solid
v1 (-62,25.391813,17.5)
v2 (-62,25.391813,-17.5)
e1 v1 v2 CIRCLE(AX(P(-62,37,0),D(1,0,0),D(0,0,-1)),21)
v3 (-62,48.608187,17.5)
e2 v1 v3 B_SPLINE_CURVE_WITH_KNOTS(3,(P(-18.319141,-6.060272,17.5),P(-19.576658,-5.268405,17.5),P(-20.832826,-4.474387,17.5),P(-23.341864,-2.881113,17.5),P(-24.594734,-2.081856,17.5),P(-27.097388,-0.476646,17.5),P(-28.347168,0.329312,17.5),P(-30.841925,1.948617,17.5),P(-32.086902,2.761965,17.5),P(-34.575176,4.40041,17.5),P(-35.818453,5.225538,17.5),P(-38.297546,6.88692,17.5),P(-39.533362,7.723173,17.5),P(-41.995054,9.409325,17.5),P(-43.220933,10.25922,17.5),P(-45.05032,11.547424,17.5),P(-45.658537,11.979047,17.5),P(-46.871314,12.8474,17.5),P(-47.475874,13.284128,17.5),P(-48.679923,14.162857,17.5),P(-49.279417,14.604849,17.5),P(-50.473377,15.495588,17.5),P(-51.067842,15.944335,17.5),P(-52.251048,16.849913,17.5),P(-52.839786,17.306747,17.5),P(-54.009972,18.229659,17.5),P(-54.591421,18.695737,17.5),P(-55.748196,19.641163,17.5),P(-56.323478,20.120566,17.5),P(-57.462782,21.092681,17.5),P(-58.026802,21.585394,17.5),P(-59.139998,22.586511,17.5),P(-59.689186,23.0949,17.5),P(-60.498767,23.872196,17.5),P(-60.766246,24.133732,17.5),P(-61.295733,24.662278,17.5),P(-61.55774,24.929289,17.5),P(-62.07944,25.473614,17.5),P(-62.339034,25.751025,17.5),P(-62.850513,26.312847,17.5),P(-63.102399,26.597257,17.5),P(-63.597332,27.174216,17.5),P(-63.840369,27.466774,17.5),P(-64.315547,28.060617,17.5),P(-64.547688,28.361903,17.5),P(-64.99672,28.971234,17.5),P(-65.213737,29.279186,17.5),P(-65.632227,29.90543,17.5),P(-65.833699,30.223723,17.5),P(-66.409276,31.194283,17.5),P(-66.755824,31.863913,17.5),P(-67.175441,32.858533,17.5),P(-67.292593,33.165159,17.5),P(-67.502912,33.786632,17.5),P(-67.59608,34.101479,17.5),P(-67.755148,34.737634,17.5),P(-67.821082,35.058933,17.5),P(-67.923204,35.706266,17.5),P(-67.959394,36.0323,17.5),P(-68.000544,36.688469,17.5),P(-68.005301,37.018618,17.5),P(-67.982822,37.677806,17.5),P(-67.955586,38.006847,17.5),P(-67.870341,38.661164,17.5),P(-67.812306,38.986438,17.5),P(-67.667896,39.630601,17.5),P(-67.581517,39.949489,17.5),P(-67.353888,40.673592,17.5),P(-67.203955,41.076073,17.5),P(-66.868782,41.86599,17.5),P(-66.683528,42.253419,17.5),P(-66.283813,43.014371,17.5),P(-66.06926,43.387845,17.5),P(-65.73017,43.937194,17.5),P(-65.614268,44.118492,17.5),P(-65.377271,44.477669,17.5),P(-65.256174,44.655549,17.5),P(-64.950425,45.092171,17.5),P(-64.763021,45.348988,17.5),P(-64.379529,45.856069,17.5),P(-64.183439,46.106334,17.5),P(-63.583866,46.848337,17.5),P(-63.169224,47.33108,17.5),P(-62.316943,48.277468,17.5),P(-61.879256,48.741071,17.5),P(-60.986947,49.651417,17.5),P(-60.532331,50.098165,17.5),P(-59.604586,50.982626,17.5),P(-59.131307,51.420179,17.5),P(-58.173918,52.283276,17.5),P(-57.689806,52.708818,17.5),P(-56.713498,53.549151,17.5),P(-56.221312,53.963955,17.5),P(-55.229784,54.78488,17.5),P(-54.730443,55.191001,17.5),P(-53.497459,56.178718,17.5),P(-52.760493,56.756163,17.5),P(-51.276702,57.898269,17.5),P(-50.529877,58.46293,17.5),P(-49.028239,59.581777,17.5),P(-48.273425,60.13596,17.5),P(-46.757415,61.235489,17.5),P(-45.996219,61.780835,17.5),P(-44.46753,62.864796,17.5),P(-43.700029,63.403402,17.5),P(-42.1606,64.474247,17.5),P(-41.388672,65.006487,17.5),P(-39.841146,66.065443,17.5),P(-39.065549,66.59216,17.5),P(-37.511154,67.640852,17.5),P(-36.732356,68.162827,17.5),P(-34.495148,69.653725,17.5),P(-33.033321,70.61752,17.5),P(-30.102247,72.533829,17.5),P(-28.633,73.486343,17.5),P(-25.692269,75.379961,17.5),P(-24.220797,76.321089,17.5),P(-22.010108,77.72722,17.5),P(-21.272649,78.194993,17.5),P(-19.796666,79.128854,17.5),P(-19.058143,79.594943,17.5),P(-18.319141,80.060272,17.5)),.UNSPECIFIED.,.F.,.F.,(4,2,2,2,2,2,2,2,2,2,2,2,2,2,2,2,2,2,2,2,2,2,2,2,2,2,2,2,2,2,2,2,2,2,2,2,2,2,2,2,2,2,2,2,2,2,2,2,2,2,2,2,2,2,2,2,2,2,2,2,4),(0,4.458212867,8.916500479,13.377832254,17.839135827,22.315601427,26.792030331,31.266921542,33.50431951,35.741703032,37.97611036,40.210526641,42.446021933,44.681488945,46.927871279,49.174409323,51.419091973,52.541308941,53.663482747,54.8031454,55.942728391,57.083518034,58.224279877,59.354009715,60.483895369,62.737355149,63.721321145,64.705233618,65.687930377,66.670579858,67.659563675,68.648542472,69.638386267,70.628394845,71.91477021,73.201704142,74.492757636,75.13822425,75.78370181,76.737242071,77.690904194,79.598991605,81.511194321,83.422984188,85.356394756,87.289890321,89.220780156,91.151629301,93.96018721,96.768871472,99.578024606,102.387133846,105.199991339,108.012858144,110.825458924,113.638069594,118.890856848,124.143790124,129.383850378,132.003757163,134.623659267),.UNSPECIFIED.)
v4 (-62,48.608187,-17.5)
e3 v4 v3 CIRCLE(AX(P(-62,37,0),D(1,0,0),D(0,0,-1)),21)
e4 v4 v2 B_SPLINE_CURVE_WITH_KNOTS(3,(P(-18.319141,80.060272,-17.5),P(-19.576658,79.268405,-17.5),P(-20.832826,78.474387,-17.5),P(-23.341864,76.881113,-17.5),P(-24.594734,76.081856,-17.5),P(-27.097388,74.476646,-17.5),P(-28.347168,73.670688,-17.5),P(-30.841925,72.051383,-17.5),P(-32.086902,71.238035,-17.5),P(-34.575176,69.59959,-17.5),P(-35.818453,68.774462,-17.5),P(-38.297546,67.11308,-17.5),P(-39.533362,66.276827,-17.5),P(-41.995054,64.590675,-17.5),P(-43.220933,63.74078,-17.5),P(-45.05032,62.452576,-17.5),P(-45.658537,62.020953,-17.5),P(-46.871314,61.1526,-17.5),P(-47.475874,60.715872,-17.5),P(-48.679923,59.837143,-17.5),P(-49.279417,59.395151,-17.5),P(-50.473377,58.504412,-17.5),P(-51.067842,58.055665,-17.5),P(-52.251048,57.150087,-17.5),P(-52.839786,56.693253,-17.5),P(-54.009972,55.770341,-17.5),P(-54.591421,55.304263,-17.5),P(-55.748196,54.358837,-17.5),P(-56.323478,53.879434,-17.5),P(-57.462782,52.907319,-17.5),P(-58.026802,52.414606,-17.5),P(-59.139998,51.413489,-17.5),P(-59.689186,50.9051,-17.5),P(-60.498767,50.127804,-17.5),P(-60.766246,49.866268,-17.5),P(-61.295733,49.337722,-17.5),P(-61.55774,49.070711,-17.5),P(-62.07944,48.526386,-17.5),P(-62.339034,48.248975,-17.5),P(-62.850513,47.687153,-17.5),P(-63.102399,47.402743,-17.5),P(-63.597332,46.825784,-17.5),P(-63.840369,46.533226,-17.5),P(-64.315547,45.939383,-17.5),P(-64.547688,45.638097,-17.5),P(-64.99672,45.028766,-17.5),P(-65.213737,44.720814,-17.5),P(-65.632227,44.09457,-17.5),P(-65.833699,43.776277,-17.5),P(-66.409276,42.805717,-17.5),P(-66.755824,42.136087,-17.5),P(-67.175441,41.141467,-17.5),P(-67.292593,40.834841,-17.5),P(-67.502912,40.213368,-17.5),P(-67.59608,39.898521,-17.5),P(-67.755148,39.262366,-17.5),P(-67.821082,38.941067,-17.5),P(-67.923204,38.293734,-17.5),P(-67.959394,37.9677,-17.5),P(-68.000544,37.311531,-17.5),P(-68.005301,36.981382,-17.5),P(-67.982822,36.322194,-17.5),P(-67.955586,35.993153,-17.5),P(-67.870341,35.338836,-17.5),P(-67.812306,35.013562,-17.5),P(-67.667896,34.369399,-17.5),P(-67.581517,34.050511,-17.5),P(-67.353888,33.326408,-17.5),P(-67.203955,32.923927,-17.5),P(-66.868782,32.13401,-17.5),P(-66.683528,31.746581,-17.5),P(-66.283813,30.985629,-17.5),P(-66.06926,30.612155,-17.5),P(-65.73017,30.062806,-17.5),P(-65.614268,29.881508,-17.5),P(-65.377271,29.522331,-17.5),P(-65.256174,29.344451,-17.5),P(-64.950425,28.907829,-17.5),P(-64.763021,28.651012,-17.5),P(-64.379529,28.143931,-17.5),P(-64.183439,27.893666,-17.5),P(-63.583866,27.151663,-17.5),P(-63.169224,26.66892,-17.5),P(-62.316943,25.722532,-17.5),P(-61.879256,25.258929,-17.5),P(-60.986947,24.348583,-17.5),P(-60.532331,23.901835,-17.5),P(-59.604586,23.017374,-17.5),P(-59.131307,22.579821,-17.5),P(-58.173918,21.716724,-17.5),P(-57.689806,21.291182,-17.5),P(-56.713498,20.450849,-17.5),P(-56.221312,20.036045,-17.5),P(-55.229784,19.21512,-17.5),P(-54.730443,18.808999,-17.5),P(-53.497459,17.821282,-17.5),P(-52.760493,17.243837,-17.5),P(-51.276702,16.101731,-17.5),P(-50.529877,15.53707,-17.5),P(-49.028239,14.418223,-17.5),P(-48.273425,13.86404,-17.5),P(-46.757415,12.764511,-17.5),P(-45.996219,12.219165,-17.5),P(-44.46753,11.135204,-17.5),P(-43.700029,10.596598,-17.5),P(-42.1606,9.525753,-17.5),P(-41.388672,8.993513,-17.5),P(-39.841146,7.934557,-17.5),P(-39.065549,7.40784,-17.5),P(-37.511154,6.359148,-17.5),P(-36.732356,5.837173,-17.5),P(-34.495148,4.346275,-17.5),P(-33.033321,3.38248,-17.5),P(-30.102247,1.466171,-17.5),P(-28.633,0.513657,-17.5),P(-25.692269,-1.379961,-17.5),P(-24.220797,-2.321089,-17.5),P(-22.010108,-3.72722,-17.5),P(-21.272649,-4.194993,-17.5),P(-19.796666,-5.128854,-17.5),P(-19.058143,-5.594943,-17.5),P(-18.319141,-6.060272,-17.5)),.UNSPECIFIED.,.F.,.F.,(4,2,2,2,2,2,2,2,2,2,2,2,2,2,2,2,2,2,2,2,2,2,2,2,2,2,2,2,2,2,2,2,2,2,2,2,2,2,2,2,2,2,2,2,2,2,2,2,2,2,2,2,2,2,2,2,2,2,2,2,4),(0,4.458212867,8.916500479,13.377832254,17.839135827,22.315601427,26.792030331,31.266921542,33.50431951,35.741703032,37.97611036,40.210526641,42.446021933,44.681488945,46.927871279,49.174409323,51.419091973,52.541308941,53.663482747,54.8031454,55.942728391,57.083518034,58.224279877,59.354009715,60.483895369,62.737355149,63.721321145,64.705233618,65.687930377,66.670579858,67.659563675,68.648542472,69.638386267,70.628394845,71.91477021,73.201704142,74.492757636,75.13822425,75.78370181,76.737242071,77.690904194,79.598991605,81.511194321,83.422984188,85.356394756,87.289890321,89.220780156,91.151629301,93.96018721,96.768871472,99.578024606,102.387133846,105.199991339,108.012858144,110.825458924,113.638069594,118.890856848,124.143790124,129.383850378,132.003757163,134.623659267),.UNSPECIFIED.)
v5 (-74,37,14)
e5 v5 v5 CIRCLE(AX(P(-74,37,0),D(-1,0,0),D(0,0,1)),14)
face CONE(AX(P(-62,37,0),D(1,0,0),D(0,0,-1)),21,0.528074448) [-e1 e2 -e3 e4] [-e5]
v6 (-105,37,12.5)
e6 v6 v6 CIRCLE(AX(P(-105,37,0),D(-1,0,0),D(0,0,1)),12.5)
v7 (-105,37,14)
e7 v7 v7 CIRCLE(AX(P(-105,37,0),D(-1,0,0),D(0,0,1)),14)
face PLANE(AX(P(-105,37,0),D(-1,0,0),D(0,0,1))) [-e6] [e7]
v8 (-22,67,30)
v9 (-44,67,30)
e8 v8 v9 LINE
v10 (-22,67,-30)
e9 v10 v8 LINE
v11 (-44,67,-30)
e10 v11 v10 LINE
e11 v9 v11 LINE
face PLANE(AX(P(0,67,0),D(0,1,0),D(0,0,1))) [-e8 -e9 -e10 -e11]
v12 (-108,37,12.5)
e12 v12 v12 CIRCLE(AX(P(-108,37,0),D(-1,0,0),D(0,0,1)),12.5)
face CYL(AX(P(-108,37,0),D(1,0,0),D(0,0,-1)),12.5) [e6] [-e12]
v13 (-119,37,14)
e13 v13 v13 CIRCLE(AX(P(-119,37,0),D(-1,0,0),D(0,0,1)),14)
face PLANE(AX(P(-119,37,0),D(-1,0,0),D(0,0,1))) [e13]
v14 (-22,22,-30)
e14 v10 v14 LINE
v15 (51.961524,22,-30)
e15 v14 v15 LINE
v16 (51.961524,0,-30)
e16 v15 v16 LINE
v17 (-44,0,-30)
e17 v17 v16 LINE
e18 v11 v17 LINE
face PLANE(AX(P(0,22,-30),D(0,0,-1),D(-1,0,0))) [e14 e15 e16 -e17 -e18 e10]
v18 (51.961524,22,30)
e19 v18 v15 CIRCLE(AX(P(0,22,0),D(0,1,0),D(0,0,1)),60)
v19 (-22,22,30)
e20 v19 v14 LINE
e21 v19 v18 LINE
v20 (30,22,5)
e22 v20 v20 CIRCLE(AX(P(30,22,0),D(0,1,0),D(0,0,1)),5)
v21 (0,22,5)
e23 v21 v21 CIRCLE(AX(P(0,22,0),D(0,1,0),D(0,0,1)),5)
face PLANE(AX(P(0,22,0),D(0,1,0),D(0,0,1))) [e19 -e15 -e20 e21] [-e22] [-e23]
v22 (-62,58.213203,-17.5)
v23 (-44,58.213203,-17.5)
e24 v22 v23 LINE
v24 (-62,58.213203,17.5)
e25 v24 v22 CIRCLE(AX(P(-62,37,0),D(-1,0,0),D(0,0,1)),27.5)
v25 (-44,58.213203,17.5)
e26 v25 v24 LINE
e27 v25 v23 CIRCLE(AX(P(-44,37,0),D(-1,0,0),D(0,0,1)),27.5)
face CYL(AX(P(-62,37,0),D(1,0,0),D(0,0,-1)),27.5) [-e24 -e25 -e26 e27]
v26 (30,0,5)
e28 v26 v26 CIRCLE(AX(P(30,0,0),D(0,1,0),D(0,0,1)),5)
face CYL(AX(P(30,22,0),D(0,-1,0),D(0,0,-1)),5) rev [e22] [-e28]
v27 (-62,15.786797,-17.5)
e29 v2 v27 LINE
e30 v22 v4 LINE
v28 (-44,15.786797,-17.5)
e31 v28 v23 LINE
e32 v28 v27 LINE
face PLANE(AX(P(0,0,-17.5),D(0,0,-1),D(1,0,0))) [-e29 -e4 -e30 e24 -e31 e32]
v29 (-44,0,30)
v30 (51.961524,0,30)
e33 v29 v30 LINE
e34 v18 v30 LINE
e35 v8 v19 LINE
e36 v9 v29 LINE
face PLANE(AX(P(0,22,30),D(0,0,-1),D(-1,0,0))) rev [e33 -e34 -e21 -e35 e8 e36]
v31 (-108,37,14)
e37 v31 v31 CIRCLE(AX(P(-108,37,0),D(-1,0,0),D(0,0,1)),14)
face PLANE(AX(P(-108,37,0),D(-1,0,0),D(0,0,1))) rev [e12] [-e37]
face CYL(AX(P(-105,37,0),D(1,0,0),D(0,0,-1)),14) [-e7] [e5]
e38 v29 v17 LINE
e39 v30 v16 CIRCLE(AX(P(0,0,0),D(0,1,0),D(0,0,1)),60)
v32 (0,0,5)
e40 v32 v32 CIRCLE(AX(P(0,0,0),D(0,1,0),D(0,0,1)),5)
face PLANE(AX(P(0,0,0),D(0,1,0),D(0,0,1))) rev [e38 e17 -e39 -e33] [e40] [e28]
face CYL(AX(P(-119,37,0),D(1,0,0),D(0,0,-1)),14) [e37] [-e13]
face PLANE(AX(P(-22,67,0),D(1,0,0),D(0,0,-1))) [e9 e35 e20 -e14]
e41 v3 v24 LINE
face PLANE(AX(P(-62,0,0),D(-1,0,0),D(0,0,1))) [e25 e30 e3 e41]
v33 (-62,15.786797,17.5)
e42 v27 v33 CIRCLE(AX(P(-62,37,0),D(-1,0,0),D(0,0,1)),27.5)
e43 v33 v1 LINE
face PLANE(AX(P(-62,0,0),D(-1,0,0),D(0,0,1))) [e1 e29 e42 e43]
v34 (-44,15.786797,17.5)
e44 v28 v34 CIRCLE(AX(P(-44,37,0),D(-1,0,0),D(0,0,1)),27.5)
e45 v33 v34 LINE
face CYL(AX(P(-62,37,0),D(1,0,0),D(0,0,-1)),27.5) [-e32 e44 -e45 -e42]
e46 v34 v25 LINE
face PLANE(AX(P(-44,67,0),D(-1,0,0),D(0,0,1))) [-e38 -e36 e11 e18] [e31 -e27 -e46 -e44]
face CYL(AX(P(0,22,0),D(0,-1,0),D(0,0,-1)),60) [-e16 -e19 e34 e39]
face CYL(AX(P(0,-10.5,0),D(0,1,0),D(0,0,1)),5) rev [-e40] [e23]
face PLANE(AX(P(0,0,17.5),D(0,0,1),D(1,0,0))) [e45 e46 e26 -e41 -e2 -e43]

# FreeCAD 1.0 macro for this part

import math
import FreeCAD as App
import Part
import Sketcher
Q = App.Units.Quantity


def add_polygon(sketch, points):
    """Adds a closed chain of lines whose ends are joined by coincident constraints."""
    first, n = sketch.GeometryCount, len(points)
    for a, b in zip(points, points[1:] + points[:1]):
        sketch.addGeometry(Part.LineSegment(App.Vector(*a, 0), App.Vector(*b, 0)), False)
    for i in range(n):
        sketch.addConstraint(Sketcher.Constraint("Coincident", first + i, 2, first + (i + 1) % n, 1))

doc = App.newDocument("Part")
body = doc.addObject("PartDesign::Body", "Body")

sketch1 = doc.addObject("Sketcher::SketchObject", "Sketch")
body.addObject(sketch1)
sketch1.AttachmentSupport = (doc.XZ_Plane, [""])
sketch1.MapMode = "FlatFace"
sketch1.addGeometry(Part.ArcOfCircle(Part.Circle(App.Vector(0, 0, 0), App.Vector(0, 0, 1), 60), math.radians(-30), math.radians(30)), False)
sketch1.addGeometry(Part.LineSegment(App.Vector(52, -30, 0), App.Vector(-22, -30, 0)), False)
sketch1.addGeometry(Part.LineSegment(App.Vector(-22, -30, 0), App.Vector(-22, 30, 0)), False)
sketch1.addGeometry(Part.LineSegment(App.Vector(-22, 30, 0), App.Vector(52, 30, 0)), False)
sketch1.addGeometry(Part.Circle(App.Vector(30, 0, 0), App.Vector(0, 0, 1), 5), False)
sketch1.addConstraint(Sketcher.Constraint("Coincident", 0, 1, 1, 1))
sketch1.addConstraint(Sketcher.Constraint("Coincident", 1, 2, 2, 1))
sketch1.addConstraint(Sketcher.Constraint("Coincident", 2, 2, 3, 1))
sketch1.addConstraint(Sketcher.Constraint("Coincident", 3, 2, 0, 2))
sketch1.addConstraint(Sketcher.Constraint("Horizontal", 1))
sketch1.addConstraint(Sketcher.Constraint("Vertical", 2))
sketch1.addConstraint(Sketcher.Constraint("Horizontal", 3))
sketch1.addConstraint(Sketcher.Constraint("Coincident", 0, 3, -1, 1))
sketch1.addConstraint(Sketcher.Constraint("PointOnObject", 4, 3, -1))
sketch1.addConstraint(Sketcher.Constraint("Vertical", 0, 1, 3, 2))
sketch1.addConstraint(Sketcher.Constraint("Diameter", 4, Q("10 mm")))
sketch1.addConstraint(Sketcher.Constraint("Radius", 0, Q("60 mm")))
sketch1.addConstraint(Sketcher.Constraint("DistanceY", 2, 1, 2, 2, Q("60 mm")))
sketch1.addConstraint(Sketcher.Constraint("DistanceX", -1, 1, 4, 3, Q("30 mm")))
sketch1.addConstraint(Sketcher.Constraint("DistanceX", 1, 2, -1, 1, Q("22 mm")))
pad1 = doc.addObject("PartDesign::Pad", "Pad")
body.addObject(pad1)
pad1.Profile = sketch1
pad1.Length = 22
pad1.Reversed = True

sketch2 = doc.addObject("Sketcher::SketchObject", "Sketch001")
body.addObject(sketch2)
sketch2.AttachmentSupport = (doc.XZ_Plane, [""])
sketch2.MapMode = "FlatFace"
add_polygon(sketch2, [(-22, -30), (-44, -30), (-44, 30), (-22, 30)])
sketch2.addConstraint(Sketcher.Constraint("Horizontal", 0))
sketch2.addConstraint(Sketcher.Constraint("Vertical", 1))
sketch2.addConstraint(Sketcher.Constraint("Horizontal", 2))
sketch2.addConstraint(Sketcher.Constraint("Vertical", 3))
sketch2.addConstraint(Sketcher.Constraint("DistanceX", 0, 2, 0, 1, Q("22 mm")))
sketch2.addConstraint(Sketcher.Constraint("DistanceY", 1, 1, 1, 2, Q("60 mm")))
sketch2.addConstraint(Sketcher.Constraint("DistanceX", 0, 2, -1, 1, Q("44 mm")))
sketch2.addConstraint(Sketcher.Constraint("DistanceY", 0, 2, -1, 1, Q("30 mm")))
pad2 = doc.addObject("PartDesign::Pad", "Pad001")
body.addObject(pad2)
pad2.Profile = sketch2
pad2.Length = 67
pad2.Reversed = True

sketch3 = doc.addObject("Sketcher::SketchObject", "Sketch002")
body.addObject(sketch3)
sketch3.AttachmentSupport = (doc.YZ_Plane, [""])
sketch3.MapMode = "FlatFace"
sketch3.AttachmentOffset = App.Placement(App.Vector(0, 0, -44), App.Rotation())
sketch3.addGeometry(Part.Circle(App.Vector(37, 0, 0), App.Vector(0, 0, 1), 28), False)
sketch3.addConstraint(Sketcher.Constraint("PointOnObject", 0, 3, -1))
sketch3.addConstraint(Sketcher.Constraint("Diameter", 0, Q("55 mm")))
sketch3.addConstraint(Sketcher.Constraint("DistanceX", -1, 1, 0, 3, Q("37 mm")))
pad3 = doc.addObject("PartDesign::Pad", "Pad002")
body.addObject(pad3)
pad3.Profile = sketch3
pad3.Length = 18
pad3.Reversed = True

sketch4 = doc.addObject("Sketcher::SketchObject", "Sketch003")
body.addObject(sketch4)
sketch4.AttachmentSupport = (doc.XY_Plane, [""])
sketch4.MapMode = "FlatFace"
add_polygon(sketch4, [(-74, 37), (-62, 37), (-62, 58), (-74, 51)])
sketch4.addGeometry(Part.LineSegment(App.Vector(-62, 37, 0), App.Vector(-74, 37, 0)), True)
sketch4.addConstraint(Sketcher.Constraint("Horizontal", 0))
sketch4.addConstraint(Sketcher.Constraint("Vertical", 1))
sketch4.addConstraint(Sketcher.Constraint("Vertical", 3))
sketch4.addConstraint(Sketcher.Constraint("Horizontal", 4))
sketch4.addConstraint(Sketcher.Constraint("Coincident", 4, 1, 0, 2))
sketch4.addConstraint(Sketcher.Constraint("Vertical", 2, 2, 4, 2))
sketch4.addConstraint(Sketcher.Constraint("DistanceX", 0, 1, 0, 2, Q("12 mm")))
sketch4.addConstraint(Sketcher.Constraint("DistanceY", 1, 1, 1, 2, Q("21 mm")))
sketch4.addConstraint(Sketcher.Constraint("DistanceY", 3, 2, 3, 1, Q("14 mm")))
sketch4.addConstraint(Sketcher.Constraint("DistanceX", 0, 2, -1, 1, Q("62 mm")))
sketch4.addConstraint(Sketcher.Constraint("DistanceY", -1, 1, 0, 2, Q("37 mm")))
revolution = doc.addObject("PartDesign::Revolution", "Revolution")
body.addObject(revolution)
revolution.Profile = sketch4
revolution.ReferenceAxis = (sketch4, ["Axis0"])
revolution.Angle = 360

sketch5 = doc.addObject("Sketcher::SketchObject", "Sketch004")
body.addObject(sketch5)
sketch5.AttachmentSupport = (doc.YZ_Plane, [""])
sketch5.MapMode = "FlatFace"
sketch5.AttachmentOffset = App.Placement(App.Vector(0, 0, -74), App.Rotation())
sketch5.addGeometry(Part.Circle(App.Vector(37, 0, 0), App.Vector(0, 0, 1), 14), False)
sketch5.addConstraint(Sketcher.Constraint("PointOnObject", 0, 3, -1))
sketch5.addConstraint(Sketcher.Constraint("Diameter", 0, Q("28 mm")))
sketch5.addConstraint(Sketcher.Constraint("DistanceX", -1, 1, 0, 3, Q("37 mm")))
pad4 = doc.addObject("PartDesign::Pad", "Pad003")
body.addObject(pad4)
pad4.Profile = sketch5
pad4.Length = 31
pad4.Reversed = True

sketch6 = doc.addObject("Sketcher::SketchObject", "Sketch005")
body.addObject(sketch6)
sketch6.AttachmentSupport = (doc.YZ_Plane, [""])
sketch6.MapMode = "FlatFace"
sketch6.AttachmentOffset = App.Placement(App.Vector(0, 0, -105), App.Rotation())
sketch6.addGeometry(Part.Circle(App.Vector(37, 0, 0), App.Vector(0, 0, 1), 12), False)
sketch6.addConstraint(Sketcher.Constraint("PointOnObject", 0, 3, -1))
sketch6.addConstraint(Sketcher.Constraint("Diameter", 0, Q("25 mm")))
sketch6.addConstraint(Sketcher.Constraint("DistanceX", -1, 1, 0, 3, Q("37 mm")))
pad5 = doc.addObject("PartDesign::Pad", "Pad004")
body.addObject(pad5)
pad5.Profile = sketch6
pad5.Length = 3
pad5.Reversed = True

sketch7 = doc.addObject("Sketcher::SketchObject", "Sketch006")
body.addObject(sketch7)
sketch7.AttachmentSupport = (doc.YZ_Plane, [""])
sketch7.MapMode = "FlatFace"
sketch7.AttachmentOffset = App.Placement(App.Vector(0, 0, -108), App.Rotation())
sketch7.addGeometry(Part.Circle(App.Vector(37, 0, 0), App.Vector(0, 0, 1), 14), False)
sketch7.addConstraint(Sketcher.Constraint("PointOnObject", 0, 3, -1))
sketch7.addConstraint(Sketcher.Constraint("Diameter", 0, Q("28 mm")))
sketch7.addConstraint(Sketcher.Constraint("DistanceX", -1, 1, 0, 3, Q("37 mm")))
pad6 = doc.addObject("PartDesign::Pad", "Pad005")
body.addObject(pad6)
pad6.Profile = sketch7
pad6.Length = 11
pad6.Reversed = True

sketch8 = doc.addObject("Sketcher::SketchObject", "Sketch007")
body.addObject(sketch8)
sketch8.AttachmentSupport = (doc.XY_Plane, [""])
sketch8.MapMode = "FlatFace"
sketch8.AttachmentOffset = App.Placement(App.Vector(0, 0, 30), App.Rotation())
add_polygon(sketch8, [(-74, 67), (-74, 0), (-44, 0), (-44, 67)])
sketch8.addConstraint(Sketcher.Constraint("Vertical", 0))
sketch8.addConstraint(Sketcher.Constraint("Horizontal", 1))
sketch8.addConstraint(Sketcher.Constraint("Vertical", 2))
sketch8.addConstraint(Sketcher.Constraint("Horizontal", 3))
sketch8.addConstraint(Sketcher.Constraint("PointOnObject", 0, 2, -1))
sketch8.addConstraint(Sketcher.Constraint("DistanceX", 1, 1, 1, 2, Q("30 mm")))
sketch8.addConstraint(Sketcher.Constraint("DistanceY", 0, 2, 0, 1, Q("67 mm")))
sketch8.addConstraint(Sketcher.Constraint("DistanceX", 0, 2, -1, 1, Q("74 mm")))
pocket1 = doc.addObject("PartDesign::Pocket", "Pocket")
body.addObject(pocket1)
pocket1.Profile = sketch8
pocket1.Length = 12.5
doc.recompute()

mirrored = doc.addObject("PartDesign::Mirrored", "Mirrored")
body.addObject(mirrored)
mirrored.Originals = [pocket1]
mirrored.MirrorPlane = (doc.XY_Plane, [""])
body.Tip = mirrored

sketch9 = doc.addObject("Sketcher::SketchObject", "Sketch008")
body.addObject(sketch9)
sketch9.AttachmentSupport = (doc.XZ_Plane, [""])
sketch9.MapMode = "FlatFace"
sketch9.AttachmentOffset = App.Placement(App.Vector(0, 0, -22), App.Rotation())
sketch9.addGeometry(Part.Circle(App.Vector(0, 0, 0), App.Vector(0, 0, 1), 5), False)
sketch9.addConstraint(Sketcher.Constraint("Coincident", 0, 3, -1, 1))
sketch9.addConstraint(Sketcher.Constraint("Diameter", 0, Q("10 mm")))
pocket2 = doc.addObject("PartDesign::Pocket", "Pocket001")
body.addObject(pocket2)
pocket2.Profile = sketch9
pocket2.Length = 32.5
pocket2.Reversed = True

doc.recompute()
